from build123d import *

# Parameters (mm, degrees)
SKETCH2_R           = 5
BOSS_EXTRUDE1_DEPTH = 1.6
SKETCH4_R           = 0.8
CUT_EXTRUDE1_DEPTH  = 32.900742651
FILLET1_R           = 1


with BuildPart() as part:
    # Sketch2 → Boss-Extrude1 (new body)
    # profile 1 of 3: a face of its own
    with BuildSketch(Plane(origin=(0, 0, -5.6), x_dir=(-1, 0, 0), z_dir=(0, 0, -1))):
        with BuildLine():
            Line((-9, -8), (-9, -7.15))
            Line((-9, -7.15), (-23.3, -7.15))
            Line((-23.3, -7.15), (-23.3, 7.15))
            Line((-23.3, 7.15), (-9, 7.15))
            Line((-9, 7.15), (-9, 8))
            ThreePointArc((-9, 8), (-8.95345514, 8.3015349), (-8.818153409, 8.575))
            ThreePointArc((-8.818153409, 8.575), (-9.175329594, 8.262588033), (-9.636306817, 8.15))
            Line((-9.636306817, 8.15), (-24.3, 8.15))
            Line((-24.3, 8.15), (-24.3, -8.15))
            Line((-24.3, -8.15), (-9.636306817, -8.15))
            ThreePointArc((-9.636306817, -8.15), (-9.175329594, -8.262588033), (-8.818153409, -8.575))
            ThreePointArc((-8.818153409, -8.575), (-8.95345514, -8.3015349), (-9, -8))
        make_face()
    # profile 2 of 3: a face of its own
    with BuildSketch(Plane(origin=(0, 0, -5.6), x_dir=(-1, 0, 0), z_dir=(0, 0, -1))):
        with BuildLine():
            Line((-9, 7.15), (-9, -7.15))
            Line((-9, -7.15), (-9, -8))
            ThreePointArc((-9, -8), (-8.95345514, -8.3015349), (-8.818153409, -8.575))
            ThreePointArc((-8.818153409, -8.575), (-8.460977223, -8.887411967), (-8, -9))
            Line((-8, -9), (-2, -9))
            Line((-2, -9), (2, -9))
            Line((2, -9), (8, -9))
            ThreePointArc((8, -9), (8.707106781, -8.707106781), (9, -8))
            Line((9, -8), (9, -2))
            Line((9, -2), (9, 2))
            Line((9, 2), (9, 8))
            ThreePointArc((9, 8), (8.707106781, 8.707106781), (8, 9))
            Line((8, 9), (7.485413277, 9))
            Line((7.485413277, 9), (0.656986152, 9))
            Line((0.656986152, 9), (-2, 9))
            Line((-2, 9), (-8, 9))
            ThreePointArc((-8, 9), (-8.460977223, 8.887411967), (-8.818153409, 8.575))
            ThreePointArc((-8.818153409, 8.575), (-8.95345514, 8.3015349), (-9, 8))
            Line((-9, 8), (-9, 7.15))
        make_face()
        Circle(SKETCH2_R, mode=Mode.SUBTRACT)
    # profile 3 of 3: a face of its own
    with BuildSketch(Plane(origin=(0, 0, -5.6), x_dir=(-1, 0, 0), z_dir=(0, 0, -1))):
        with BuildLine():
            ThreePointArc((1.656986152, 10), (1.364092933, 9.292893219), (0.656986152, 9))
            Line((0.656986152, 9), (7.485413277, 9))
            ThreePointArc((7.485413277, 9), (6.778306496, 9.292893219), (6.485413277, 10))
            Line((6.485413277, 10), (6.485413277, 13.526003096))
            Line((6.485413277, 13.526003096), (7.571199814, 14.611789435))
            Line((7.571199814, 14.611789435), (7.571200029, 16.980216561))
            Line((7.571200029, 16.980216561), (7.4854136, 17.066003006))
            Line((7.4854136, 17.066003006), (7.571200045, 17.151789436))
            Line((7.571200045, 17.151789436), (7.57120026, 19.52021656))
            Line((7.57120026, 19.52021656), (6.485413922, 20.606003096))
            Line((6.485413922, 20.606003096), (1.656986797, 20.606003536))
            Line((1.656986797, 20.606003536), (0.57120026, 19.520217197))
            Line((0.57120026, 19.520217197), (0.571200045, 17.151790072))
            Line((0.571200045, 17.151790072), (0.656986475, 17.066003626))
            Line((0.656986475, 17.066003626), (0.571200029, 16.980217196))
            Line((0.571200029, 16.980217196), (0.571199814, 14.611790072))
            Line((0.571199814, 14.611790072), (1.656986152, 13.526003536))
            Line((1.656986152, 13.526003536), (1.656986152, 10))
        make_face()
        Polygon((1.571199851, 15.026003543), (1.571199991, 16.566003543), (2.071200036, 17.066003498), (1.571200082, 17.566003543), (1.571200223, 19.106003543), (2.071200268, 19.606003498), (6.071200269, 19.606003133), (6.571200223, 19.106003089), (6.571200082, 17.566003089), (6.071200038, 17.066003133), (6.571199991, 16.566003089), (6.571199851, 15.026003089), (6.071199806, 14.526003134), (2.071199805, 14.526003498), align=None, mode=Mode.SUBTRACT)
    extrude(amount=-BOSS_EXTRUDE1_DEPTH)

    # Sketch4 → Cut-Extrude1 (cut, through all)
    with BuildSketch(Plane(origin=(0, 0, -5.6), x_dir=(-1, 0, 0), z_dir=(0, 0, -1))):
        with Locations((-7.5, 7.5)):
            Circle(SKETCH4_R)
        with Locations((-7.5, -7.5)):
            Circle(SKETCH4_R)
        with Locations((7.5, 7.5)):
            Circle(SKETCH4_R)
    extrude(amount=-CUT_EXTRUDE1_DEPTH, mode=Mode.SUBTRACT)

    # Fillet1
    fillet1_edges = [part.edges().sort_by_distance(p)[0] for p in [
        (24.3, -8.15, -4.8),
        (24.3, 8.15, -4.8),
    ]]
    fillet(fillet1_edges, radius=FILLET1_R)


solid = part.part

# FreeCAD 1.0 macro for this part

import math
import FreeCAD as App
import Part
import Sketcher
Q = App.Units.Quantity


def edges_at(feature, points):
    """Names of the edges that pass closest to the given points."""
    edges = feature.Shape.Edges
    near = lambda p: min(range(len(edges)), key=lambda i: edges[i].distToShape(Part.Vertex(*p))[0])
    return sorted({f"Edge{near(p) + 1}" for p in points})


def add_polygon(sketch, points):
    """Adds a closed chain of lines whose ends are joined by coincident constraints."""
    first, n = sketch.GeometryCount, len(points)
    for a, b in zip(points, points[1:] + points[:1]):
        sketch.addGeometry(Part.LineSegment(App.Vector(*a, 0), App.Vector(*b, 0)), False)
    for i in range(n):
        sketch.addConstraint(Sketcher.Constraint("Coincident", first + i, 2, first + (i + 1) % n, 1))

doc = App.newDocument("Part")
params = doc.addObject("Spreadsheet::Sheet", "Params")
for row, (alias, value) in enumerate([
    ("sketch1_diameter", "10 mm"),
    ("sketch1_radius", "1 mm"),
    ("sketch1_width", "16 mm"),
    ("sketch1_width2", "4 mm"),
    ("sketch1_width3", "14.3 mm"),
    ("pad1_length", "1.6 mm"),
    ("sketch2_diameter", "1.6 mm"),
    ("fillet_radius", "1 mm"),
], start=1):
    params.set(f"A{row}", alias)
    params.set(f"B{row}", "=" + value)
    params.setAlias(f"B{row}", alias)

body = doc.addObject("PartDesign::Body", "Body")

sketch1 = body.newObject("Sketcher::SketchObject", "Sketch")
sketch1.AttachmentSupport = (doc.getObject("XY_Plane"), [""])
sketch1.MapMode = "FlatFace"
sketch1.AttachmentOffset = App.Placement(App.Vector(0, 0, -5.6), App.Rotation())
sketch1.addGeometry(Part.ArcOfCircle(Part.Circle(App.Vector(9.636307, 9.15, 0), App.Vector(0, 0, 1), 1), math.radians(-144.900368), math.radians(-90)), False)
sketch1.addGeometry(Part.LineSegment(App.Vector(9.636307, 8.15, 0), App.Vector(24.3, 8.15, 0)), False)
sketch1.addGeometry(Part.LineSegment(App.Vector(24.3, 8.15, 0), App.Vector(24.3, -8.15, 0)), False)
sketch1.addGeometry(Part.LineSegment(App.Vector(24.3, -8.15, 0), App.Vector(9.636307, -8.15, 0)), False)
sketch1.addGeometry(Part.ArcOfCircle(Part.Circle(App.Vector(9.636307, -9.15, 0), App.Vector(0, 0, 1), 1), math.radians(90), math.radians(144.900368)), False)
sketch1.addGeometry(Part.ArcOfCircle(Part.Circle(App.Vector(8, -8, 0), App.Vector(0, 0, 1), 1), math.radians(-90), math.radians(-35.099632)), False)
sketch1.addGeometry(Part.LineSegment(App.Vector(8, -9, 0), App.Vector(-8, -9, 0)), False)
sketch1.addGeometry(Part.ArcOfCircle(Part.Circle(App.Vector(-8, -8, 0), App.Vector(0, 0, 1), 1), math.radians(-180), math.radians(-90)), False)
sketch1.addGeometry(Part.LineSegment(App.Vector(-9, -8, 0), App.Vector(-9, 8, 0)), False)
sketch1.addGeometry(Part.ArcOfCircle(Part.Circle(App.Vector(-8, 8, 0), App.Vector(0, 0, 1), 1), math.radians(90), math.radians(180)), False)
sketch1.addGeometry(Part.LineSegment(App.Vector(-8, 9, 0), App.Vector(-7.485413, 9, 0)), False)
sketch1.addGeometry(Part.ArcOfCircle(Part.Circle(App.Vector(-7.485413, 10, 0), App.Vector(0, 0, 1), 1), math.radians(-90), math.radians(0)), False)
sketch1.addGeometry(Part.LineSegment(App.Vector(-6.485413, 10, 0), App.Vector(-6.485413, 13.526003, 0)), False)
sketch1.addGeometry(Part.LineSegment(App.Vector(-6.485413, 13.526003, 0), App.Vector(-7.5712, 14.611789, 0)), False)
sketch1.addGeometry(Part.LineSegment(App.Vector(-7.5712, 14.611789, 0), App.Vector(-7.5712, 16.980217, 0)), False)
sketch1.addGeometry(Part.LineSegment(App.Vector(-7.5712, 16.980217, 0), App.Vector(-7.485414, 17.066003, 0)), False)
sketch1.addGeometry(Part.LineSegment(App.Vector(-7.485414, 17.066003, 0), App.Vector(-7.5712, 17.151789, 0)), False)
sketch1.addGeometry(Part.LineSegment(App.Vector(-7.5712, 17.151789, 0), App.Vector(-7.5712, 19.520217, 0)), False)
sketch1.addGeometry(Part.LineSegment(App.Vector(-7.5712, 19.520217, 0), App.Vector(-6.485414, 20.606003, 0)), False)
sketch1.addGeometry(Part.LineSegment(App.Vector(-6.485414, 20.606003, 0), App.Vector(-1.656987, 20.606004, 0)), False)
sketch1.addGeometry(Part.LineSegment(App.Vector(-1.656987, 20.606004, 0), App.Vector(-0.5712, 19.520217, 0)), False)
sketch1.addGeometry(Part.LineSegment(App.Vector(-0.5712, 19.520217, 0), App.Vector(-0.5712, 17.15179, 0)), False)
sketch1.addGeometry(Part.LineSegment(App.Vector(-0.5712, 17.15179, 0), App.Vector(-0.656986, 17.066004, 0)), False)
sketch1.addGeometry(Part.LineSegment(App.Vector(-0.656986, 17.066004, 0), App.Vector(-0.5712, 16.980217, 0)), False)
sketch1.addGeometry(Part.LineSegment(App.Vector(-0.5712, 16.980217, 0), App.Vector(-0.5712, 14.61179, 0)), False)
sketch1.addGeometry(Part.LineSegment(App.Vector(-0.5712, 14.61179, 0), App.Vector(-1.656986, 13.526004, 0)), False)
sketch1.addGeometry(Part.LineSegment(App.Vector(-1.656986, 13.526004, 0), App.Vector(-1.656986, 10, 0)), False)
sketch1.addGeometry(Part.ArcOfCircle(Part.Circle(App.Vector(-0.656986, 10, 0), App.Vector(0, 0, 1), 1), math.radians(-180), math.radians(-90)), False)
sketch1.addGeometry(Part.LineSegment(App.Vector(-0.656986, 9, 0), App.Vector(8, 9, 0)), False)
sketch1.addGeometry(Part.ArcOfCircle(Part.Circle(App.Vector(8, 8, 0), App.Vector(0, 0, 1), 1), math.radians(35.099632), math.radians(90)), False)
add_polygon(sketch1, [(9, -7.15), (23.3, -7.15), (23.3, 7.15), (9, 7.15)])
sketch1.addGeometry(Part.Circle(App.Vector(0, 0, 0), App.Vector(0, 0, 1), 5), False)
add_polygon(sketch1, [(-1.5712, 15.026004), (-1.5712, 16.566004), (-2.0712, 17.066003), (-1.5712, 17.566004), (-1.5712, 19.106004), (-2.0712, 19.606003), (-6.0712, 19.606003), (-6.5712, 19.106003), (-6.5712, 17.566003), (-6.0712, 17.066003), (-6.5712, 16.566003), (-6.5712, 15.026003), (-6.0712, 14.526003), (-2.0712, 14.526003)])
sketch1.addConstraint([
    Sketcher.Constraint("Tangent", 0, 2, 1, 1),
    Sketcher.Constraint("Coincident", 1, 2, 2, 1),
    Sketcher.Constraint("Coincident", 2, 2, 3, 1),
    Sketcher.Constraint("Tangent", 3, 2, 4, 1),
    Sketcher.Constraint("Tangent", 4, 2, 5, 2),
    Sketcher.Constraint("Tangent", 5, 1, 6, 1),
    Sketcher.Constraint("Tangent", 6, 2, 7, 2),
    Sketcher.Constraint("Tangent", 7, 1, 8, 1),
    Sketcher.Constraint("Tangent", 8, 2, 9, 2),
    Sketcher.Constraint("Tangent", 9, 1, 10, 1),
    Sketcher.Constraint("Tangent", 10, 2, 11, 1),
    Sketcher.Constraint("Tangent", 11, 2, 12, 1),
    Sketcher.Constraint("Coincident", 12, 2, 13, 1),
    Sketcher.Constraint("Coincident", 13, 2, 14, 1),
    Sketcher.Constraint("Coincident", 14, 2, 15, 1),
    Sketcher.Constraint("Coincident", 15, 2, 16, 1),
    Sketcher.Constraint("Coincident", 16, 2, 17, 1),
    Sketcher.Constraint("Coincident", 17, 2, 18, 1),
    Sketcher.Constraint("Coincident", 18, 2, 19, 1),
    Sketcher.Constraint("Coincident", 19, 2, 20, 1),
    Sketcher.Constraint("Coincident", 20, 2, 21, 1),
    Sketcher.Constraint("Coincident", 21, 2, 22, 1),
    Sketcher.Constraint("Coincident", 22, 2, 23, 1),
    Sketcher.Constraint("Coincident", 23, 2, 24, 1),
    Sketcher.Constraint("Coincident", 24, 2, 25, 1),
    Sketcher.Constraint("Coincident", 25, 2, 26, 1),
    Sketcher.Constraint("Tangent", 26, 2, 27, 1),
    Sketcher.Constraint("Tangent", 27, 2, 28, 1),
    Sketcher.Constraint("Tangent", 28, 2, 29, 2),
    Sketcher.Constraint("Tangent", 29, 1, 0, 1),
    Sketcher.Constraint("Horizontal", 1),
    Sketcher.Constraint("Vertical", 2),
    Sketcher.Constraint("Horizontal", 3),
    Sketcher.Constraint("Horizontal", 6),
    Sketcher.Constraint("Vertical", 8),
    Sketcher.Constraint("Horizontal", 10),
    Sketcher.Constraint("Vertical", 12),
    Sketcher.Constraint("Vertical", 14),
    Sketcher.Constraint("Vertical", 17),
    Sketcher.Constraint("Horizontal", 19),
    Sketcher.Constraint("Vertical", 21),
    Sketcher.Constraint("Vertical", 24),
    Sketcher.Constraint("Vertical", 26),
    Sketcher.Constraint("Horizontal", 28),
    Sketcher.Constraint("Horizontal", 30),
    Sketcher.Constraint("Vertical", 31),
    Sketcher.Constraint("Horizontal", 32),
    Sketcher.Constraint("Vertical", 33),
    Sketcher.Constraint("Vertical", 35),
    Sketcher.Constraint("Vertical", 38),
    Sketcher.Constraint("Horizontal", 40),
    Sketcher.Constraint("Vertical", 42),
    Sketcher.Constraint("Vertical", 45),
    Sketcher.Constraint("Horizontal", 47),
    Sketcher.Constraint("Coincident", 34, 3, -1, 1),
    Sketcher.Constraint("Equal", 0, 4),
    Sketcher.Constraint("Equal", 4, 5),
    Sketcher.Constraint("Equal", 5, 7),
    Sketcher.Constraint("Equal", 7, 9),
    Sketcher.Constraint("Equal", 9, 11),
    Sketcher.Constraint("Equal", 11, 27),
    Sketcher.Constraint("Equal", 27, 29),
    Sketcher.Constraint("Symmetric", 5, 3, 9, 3, -1, 1),
    Sketcher.Constraint("Symmetric", 7, 3, 29, 3, -1, 1),
    Sketcher.Constraint("Perpendicular", 13, 15),
    Sketcher.Constraint("Perpendicular", 15, 16),
    Sketcher.Constraint("Perpendicular", 16, 18),
    Sketcher.Constraint("Perpendicular", 18, 20),
    Sketcher.Constraint("Perpendicular", 20, 22),
    Sketcher.Constraint("Perpendicular", 22, 23),
    Sketcher.Constraint("Perpendicular", 23, 25),
    Sketcher.Constraint("Perpendicular", 25, 36),
    Sketcher.Constraint("Perpendicular", 36, 37),
    Sketcher.Constraint("Perpendicular", 37, 39),
    Sketcher.Constraint("Perpendicular", 39, 41),
    Sketcher.Constraint("Perpendicular", 41, 43),
    Sketcher.Constraint("Perpendicular", 43, 44),
    Sketcher.Constraint("Perpendicular", 44, 46),
    Sketcher.Constraint("Perpendicular", 46, 48),
    Sketcher.Constraint("Horizontal", 17, 2, 20, 2),
    Sketcher.Constraint("Horizontal", 16, 2, 21, 2),
    Sketcher.Constraint("Horizontal", 15, 2, 22, 2),
    Sketcher.Constraint("Horizontal", 14, 2, 23, 2),
    Sketcher.Constraint("Horizontal", 13, 2, 24, 2),
    Sketcher.Constraint("Horizontal", 12, 2, 25, 2),
    Sketcher.Constraint("Horizontal", 22, 2, 36, 2),
    Sketcher.Constraint("Horizontal", 38, 2, 41, 2),
    Sketcher.Constraint("Horizontal", 37, 2, 42, 2),
    Sketcher.Constraint("Horizontal", 36, 2, 43, 2),
    Sketcher.Constraint("Horizontal", 35, 2, 44, 2),
    Sketcher.Constraint("Horizontal", 45, 2, 48, 2),
    Sketcher.Constraint("Vertical", 0, 3, 4, 3),
    Sketcher.Constraint("Vertical", 10, 2, 15, 2),
    Sketcher.Constraint("Vertical", 14, 2, 16, 2),
    Sketcher.Constraint("Vertical", 12, 2, 18, 2),
    Sketcher.Constraint("Vertical", 27, 3, 22, 2),
    Sketcher.Constraint("Vertical", 35, 2, 37, 2),
    Sketcher.Constraint("Vertical", 36, 2, 39, 2),
    Sketcher.Constraint("Vertical", 43, 2, 46, 2),
    Sketcher.Constraint("Equal", 6, 8),
    Sketcher.Constraint("Equal", 14, 17),
    Sketcher.Constraint("Equal", 32, 31),
    Sketcher.Constraint("Equal", 35, 38),
    Sketcher.Constraint("Diameter", 34, Q("10 mm")),
    Sketcher.Constraint("Radius", 0, Q("1 mm")),
    Sketcher.Constraint("DistanceX", 6, 2, 6, 1, Q("16 mm")),
    Sketcher.Constraint("DistanceX", 40, 2, 40, 1, Q("4 mm")),
    Sketcher.Constraint("DistanceX", 30, 1, 30, 2, Q("14.3 mm")),
    Sketcher.Constraint("DistanceY", 2, 2, 2, 1, Q("16.3 mm")),
    Sketcher.Constraint("DistanceX", -1, 1, 32, 2, Q("9 mm")),
    Sketcher.Constraint("DistanceX", 17, 2, 20, 2, Q("7 mm")),
    Sketcher.Constraint("DistanceX", 30, 2, 2, 2, Q("1 mm")),
    Sketcher.Constraint("DistanceY", 2, 2, 30, 2, Q("1 mm")),
    Sketcher.Constraint("DistanceX", 35, 2, 23, 2, Q("1 mm")),
    Sketcher.Constraint("DistanceY", 35, 2, 37, 2, Q("1 mm")),
    Sketcher.Constraint("DistanceY", 39, 2, 19, 2, Q("1 mm")),
    Sketcher.Constraint("DistanceY", 35, 1, 35, 2, Q("1.54 mm")),
    Sketcher.Constraint("DistanceX", 13, 2, -1, 1, Q("7.5712 mm")),
    Sketcher.Constraint("Distance", 15, Q("0.12132 mm")),
    Sketcher.Constraint("DistanceY", 12, 1, 12, 2, Q("3.526003 mm")),
])
sketch1.setExpression("Constraints[121]", "Params.sketch1_diameter")
sketch1.setExpression("Constraints[122]", "Params.sketch1_radius")
sketch1.setExpression("Constraints[123]", "Params.sketch1_width")
sketch1.setExpression("Constraints[124]", "Params.sketch1_width2")
sketch1.setExpression("Constraints[125]", "Params.sketch1_width3")
pad1 = body.newObject("PartDesign::Pad", "Pad")
pad1.Profile = sketch1
pad1.setExpression("Length", "Params.pad1_length")

sketch2 = body.newObject("Sketcher::SketchObject", "Sketch001")
sketch2.AttachmentSupport = (doc.getObject("XY_Plane"), [""])
sketch2.MapMode = "FlatFace"
sketch2.AttachmentOffset = App.Placement(App.Vector(0, 0, -5.6), App.Rotation())
sketch2.addGeometry([
    Part.Circle(App.Vector(7.5, 7.5, 0), App.Vector(0, 0, 1), 0.8),
    Part.Circle(App.Vector(7.5, -7.5, 0), App.Vector(0, 0, 1), 0.8),
    Part.Circle(App.Vector(-7.5, 7.5, 0), App.Vector(0, 0, 1), 0.8),
], False)
sketch2.addConstraint([
    Sketcher.Constraint("Equal", 0, 1),
    Sketcher.Constraint("Equal", 1, 2),
    Sketcher.Constraint("Symmetric", 1, 3, 2, 3, -1, 1),
    Sketcher.Constraint("Symmetric", 0, 3, 2, 3, -2),
    Sketcher.Constraint("Diameter", 0, Q("1.6 mm")),
    Sketcher.Constraint("DistanceY", 1, 3, 0, 3, Q("15 mm")),
    Sketcher.Constraint("DistanceX", 2, 3, 0, 3, Q("15 mm")),
])
sketch2.setExpression("Constraints[4]", "Params.sketch2_diameter")
pocket1 = body.newObject("PartDesign::Pocket", "Pocket")
pocket1.Profile = sketch2
pocket1.Type = "ThroughAll"
pocket1.Reversed = True
doc.recompute()

fillet = body.newObject("PartDesign::Fillet", "Fillet")
fillet.Base = (pocket1, edges_at(pocket1, [(24.3, -8.15, -4.8), (24.3, 8.15, -4.8)]))
fillet.setExpression("Radius", "Params.fillet_radius")

doc.recompute()
